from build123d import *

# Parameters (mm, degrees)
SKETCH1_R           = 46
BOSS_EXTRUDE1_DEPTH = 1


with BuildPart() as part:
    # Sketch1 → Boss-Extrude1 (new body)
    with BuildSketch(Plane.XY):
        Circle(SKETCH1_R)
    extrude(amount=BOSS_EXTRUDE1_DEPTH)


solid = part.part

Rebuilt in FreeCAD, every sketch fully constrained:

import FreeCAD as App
import Part
import Sketcher
from FreeCAD import Vector

doc = App.newDocument("Part")
params = doc.addObject("Spreadsheet::Sheet", "Params")
for row, (alias, value) in enumerate([
    ("sketch1_diameter", "92 mm"),
    ("pad1_length", "1 mm"),
], start=1):
    params.set(f"A{row}", alias)
    params.set(f"B{row}", "=" + value)
    params.setAlias(f"B{row}", alias)

body = doc.addObject("PartDesign::Body", "Body")

# Sketch on XY plane
sketch1 = body.newObject("Sketcher::SketchObject", "Sketch")
sketch1.AttachmentSupport = (doc.getObject("XY_Plane"), [""])
sketch1.MapMode = "FlatFace"
sketch1.addGeometry(Part.Circle(Vector(0, 0, 0), Vector(0, 0, 1), 46), False)
sketch1.addConstraint([
    Sketcher.Constraint("Coincident", 0, 3, -1, 1),
    Sketcher.Constraint("Diameter", 0, 92.0),
])
sketch1.setExpression("Constraints[1]", "Params.sketch1_diameter")
pad1 = body.newObject("PartDesign::Pad", "Pad")
pad1.Profile = sketch1
pad1.setExpression("Length", "Params.pad1_length")

doc.recompute()
